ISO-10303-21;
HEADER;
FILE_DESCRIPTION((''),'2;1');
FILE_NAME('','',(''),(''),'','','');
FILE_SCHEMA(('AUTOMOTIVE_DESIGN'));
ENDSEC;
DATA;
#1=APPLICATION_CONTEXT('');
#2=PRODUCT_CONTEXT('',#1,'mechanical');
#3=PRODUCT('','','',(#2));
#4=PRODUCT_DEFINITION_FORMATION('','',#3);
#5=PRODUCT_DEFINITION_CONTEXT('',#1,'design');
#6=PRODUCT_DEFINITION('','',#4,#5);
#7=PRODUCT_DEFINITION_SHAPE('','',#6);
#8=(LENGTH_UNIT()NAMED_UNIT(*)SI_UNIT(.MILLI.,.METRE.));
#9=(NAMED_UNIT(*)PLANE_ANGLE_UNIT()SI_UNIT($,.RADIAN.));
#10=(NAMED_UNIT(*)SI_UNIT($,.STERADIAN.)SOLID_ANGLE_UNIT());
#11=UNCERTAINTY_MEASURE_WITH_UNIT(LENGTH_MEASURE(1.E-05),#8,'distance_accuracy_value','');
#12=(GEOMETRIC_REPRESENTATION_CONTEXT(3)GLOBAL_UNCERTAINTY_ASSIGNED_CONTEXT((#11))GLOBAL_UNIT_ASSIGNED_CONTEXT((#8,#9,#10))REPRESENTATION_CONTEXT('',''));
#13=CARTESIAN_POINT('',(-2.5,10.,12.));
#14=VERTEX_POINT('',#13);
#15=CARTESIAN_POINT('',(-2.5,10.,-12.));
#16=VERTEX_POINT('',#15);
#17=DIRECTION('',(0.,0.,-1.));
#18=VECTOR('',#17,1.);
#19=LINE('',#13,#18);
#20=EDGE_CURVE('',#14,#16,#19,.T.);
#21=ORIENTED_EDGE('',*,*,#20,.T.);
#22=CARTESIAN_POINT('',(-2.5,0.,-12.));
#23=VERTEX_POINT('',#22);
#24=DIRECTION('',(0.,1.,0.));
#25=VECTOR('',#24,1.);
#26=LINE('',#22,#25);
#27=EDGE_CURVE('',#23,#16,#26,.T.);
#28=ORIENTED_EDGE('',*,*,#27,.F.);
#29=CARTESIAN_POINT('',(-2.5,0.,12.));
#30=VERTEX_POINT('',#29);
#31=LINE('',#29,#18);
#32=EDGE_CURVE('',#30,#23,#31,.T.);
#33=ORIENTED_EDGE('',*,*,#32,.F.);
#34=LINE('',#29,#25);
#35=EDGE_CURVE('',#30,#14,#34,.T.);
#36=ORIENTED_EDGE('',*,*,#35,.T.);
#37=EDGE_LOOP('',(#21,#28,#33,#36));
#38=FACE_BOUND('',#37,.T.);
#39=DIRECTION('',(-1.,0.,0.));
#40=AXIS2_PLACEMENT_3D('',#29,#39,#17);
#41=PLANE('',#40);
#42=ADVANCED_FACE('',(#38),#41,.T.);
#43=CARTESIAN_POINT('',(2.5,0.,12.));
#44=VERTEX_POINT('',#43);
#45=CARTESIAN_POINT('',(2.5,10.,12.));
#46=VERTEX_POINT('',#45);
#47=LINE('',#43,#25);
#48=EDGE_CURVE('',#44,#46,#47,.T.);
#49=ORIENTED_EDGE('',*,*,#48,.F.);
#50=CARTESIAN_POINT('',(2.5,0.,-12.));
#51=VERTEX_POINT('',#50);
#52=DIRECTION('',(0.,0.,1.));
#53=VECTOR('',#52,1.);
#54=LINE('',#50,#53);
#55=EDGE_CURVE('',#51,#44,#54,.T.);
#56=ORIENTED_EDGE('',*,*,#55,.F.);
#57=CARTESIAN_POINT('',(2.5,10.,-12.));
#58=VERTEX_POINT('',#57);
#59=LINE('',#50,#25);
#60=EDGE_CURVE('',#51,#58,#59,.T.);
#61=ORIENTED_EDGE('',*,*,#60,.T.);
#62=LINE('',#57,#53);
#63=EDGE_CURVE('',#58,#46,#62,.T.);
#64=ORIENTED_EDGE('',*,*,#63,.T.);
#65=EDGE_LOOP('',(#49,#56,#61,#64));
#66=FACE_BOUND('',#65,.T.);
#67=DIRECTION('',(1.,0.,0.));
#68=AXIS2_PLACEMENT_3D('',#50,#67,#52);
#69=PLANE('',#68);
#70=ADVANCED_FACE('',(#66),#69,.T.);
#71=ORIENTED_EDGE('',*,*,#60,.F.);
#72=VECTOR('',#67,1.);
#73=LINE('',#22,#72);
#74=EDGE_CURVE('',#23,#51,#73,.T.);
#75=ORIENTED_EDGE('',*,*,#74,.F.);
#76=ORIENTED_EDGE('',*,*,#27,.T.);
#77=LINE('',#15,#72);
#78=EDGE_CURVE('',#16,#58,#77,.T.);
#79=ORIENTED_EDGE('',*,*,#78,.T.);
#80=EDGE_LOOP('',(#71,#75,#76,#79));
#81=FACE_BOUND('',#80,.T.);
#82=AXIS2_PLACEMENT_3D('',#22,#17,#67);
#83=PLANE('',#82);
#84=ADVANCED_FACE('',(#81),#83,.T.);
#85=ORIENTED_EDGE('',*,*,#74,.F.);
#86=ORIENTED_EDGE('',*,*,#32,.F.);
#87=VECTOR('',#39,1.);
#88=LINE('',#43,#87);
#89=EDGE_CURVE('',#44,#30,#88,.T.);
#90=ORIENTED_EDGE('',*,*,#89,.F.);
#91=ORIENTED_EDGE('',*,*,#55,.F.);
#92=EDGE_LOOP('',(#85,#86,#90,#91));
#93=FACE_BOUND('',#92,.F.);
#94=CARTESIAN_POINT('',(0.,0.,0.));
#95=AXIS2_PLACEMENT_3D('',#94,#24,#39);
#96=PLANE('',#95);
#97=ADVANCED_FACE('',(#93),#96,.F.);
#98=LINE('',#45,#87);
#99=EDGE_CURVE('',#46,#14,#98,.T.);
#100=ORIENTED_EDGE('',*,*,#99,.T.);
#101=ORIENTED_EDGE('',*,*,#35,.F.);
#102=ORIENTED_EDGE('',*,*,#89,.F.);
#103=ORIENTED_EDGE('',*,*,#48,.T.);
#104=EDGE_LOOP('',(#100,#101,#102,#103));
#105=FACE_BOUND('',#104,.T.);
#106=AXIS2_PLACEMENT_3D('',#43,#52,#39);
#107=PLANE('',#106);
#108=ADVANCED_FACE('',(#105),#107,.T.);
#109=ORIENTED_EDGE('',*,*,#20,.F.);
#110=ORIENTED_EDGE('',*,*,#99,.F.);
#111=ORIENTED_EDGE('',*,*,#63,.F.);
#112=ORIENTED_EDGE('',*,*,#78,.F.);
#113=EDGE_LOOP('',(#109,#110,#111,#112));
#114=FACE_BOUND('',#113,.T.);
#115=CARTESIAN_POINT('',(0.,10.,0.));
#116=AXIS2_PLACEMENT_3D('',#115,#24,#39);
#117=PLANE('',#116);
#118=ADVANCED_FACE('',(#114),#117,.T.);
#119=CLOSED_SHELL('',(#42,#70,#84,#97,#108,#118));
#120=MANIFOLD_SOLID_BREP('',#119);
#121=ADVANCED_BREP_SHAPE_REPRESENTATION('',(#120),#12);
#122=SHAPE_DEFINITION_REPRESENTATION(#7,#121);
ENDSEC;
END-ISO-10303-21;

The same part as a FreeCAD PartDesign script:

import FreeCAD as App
import Part
import Sketcher

V = App.Vector
Q = App.Units.Quantity

doc = App.newDocument("Part")
params = doc.addObject("Spreadsheet::Sheet", "Params")
for row, (alias, value) in enumerate([
    ("sketch1_width", "5 mm"),
    ("sketch1_height", "24 mm"),
    ("pad1_length", "10 mm"),
], start=1):
    params.set(f"A{row}", alias)
    params.set(f"B{row}", "=" + value)
    params.setAlias(f"B{row}", alias)

body = doc.addObject("PartDesign::Body", "Body")

sketch1 = doc.addObject("Sketcher::SketchObject", "Sketch")
body.addObject(sketch1)
sketch1.AttachmentSupport = (doc.XZ_Plane, [""])
sketch1.MapMode = "FlatFace"
sketch1.addGeometry([
    Part.LineSegment(V(-2, 12, 0), V(2, 12, 0)),
    Part.LineSegment(V(2, 12, 0), V(2, -12, 0)),
    Part.LineSegment(V(2, -12, 0), V(-2, -12, 0)),
    Part.LineSegment(V(-2, -12, 0), V(-2, 12, 0)),
], False)
sketch1.addConstraint([
    Sketcher.Constraint("Coincident", 0, 2, 1, 1),
    Sketcher.Constraint("Coincident", 1, 2, 2, 1),
    Sketcher.Constraint("Coincident", 2, 2, 3, 1),
    Sketcher.Constraint("Coincident", 3, 2, 0, 1),
    Sketcher.Constraint("Horizontal", 0),
    Sketcher.Constraint("Vertical", 1),
    Sketcher.Constraint("Horizontal", 2),
    Sketcher.Constraint("Vertical", 3),
    Sketcher.Constraint("Symmetric", 0, 2, 2, 2, -1, 1),
    Sketcher.Constraint("DistanceX", 0, 1, 0, 2, Q("5 mm")),
    Sketcher.Constraint("DistanceY", 1, 2, 1, 1, Q("24 mm")),
])
sketch1.setExpression("Constraints[9]", "Params.sketch1_width")
sketch1.setExpression("Constraints[10]", "Params.sketch1_height")
pad1 = doc.addObject("PartDesign::Pad", "Pad")
body.addObject(pad1)
pad1.Profile = sketch1
pad1.setExpression("Length", "Params.pad1_length")
pad1.Reversed = True

doc.recompute()
